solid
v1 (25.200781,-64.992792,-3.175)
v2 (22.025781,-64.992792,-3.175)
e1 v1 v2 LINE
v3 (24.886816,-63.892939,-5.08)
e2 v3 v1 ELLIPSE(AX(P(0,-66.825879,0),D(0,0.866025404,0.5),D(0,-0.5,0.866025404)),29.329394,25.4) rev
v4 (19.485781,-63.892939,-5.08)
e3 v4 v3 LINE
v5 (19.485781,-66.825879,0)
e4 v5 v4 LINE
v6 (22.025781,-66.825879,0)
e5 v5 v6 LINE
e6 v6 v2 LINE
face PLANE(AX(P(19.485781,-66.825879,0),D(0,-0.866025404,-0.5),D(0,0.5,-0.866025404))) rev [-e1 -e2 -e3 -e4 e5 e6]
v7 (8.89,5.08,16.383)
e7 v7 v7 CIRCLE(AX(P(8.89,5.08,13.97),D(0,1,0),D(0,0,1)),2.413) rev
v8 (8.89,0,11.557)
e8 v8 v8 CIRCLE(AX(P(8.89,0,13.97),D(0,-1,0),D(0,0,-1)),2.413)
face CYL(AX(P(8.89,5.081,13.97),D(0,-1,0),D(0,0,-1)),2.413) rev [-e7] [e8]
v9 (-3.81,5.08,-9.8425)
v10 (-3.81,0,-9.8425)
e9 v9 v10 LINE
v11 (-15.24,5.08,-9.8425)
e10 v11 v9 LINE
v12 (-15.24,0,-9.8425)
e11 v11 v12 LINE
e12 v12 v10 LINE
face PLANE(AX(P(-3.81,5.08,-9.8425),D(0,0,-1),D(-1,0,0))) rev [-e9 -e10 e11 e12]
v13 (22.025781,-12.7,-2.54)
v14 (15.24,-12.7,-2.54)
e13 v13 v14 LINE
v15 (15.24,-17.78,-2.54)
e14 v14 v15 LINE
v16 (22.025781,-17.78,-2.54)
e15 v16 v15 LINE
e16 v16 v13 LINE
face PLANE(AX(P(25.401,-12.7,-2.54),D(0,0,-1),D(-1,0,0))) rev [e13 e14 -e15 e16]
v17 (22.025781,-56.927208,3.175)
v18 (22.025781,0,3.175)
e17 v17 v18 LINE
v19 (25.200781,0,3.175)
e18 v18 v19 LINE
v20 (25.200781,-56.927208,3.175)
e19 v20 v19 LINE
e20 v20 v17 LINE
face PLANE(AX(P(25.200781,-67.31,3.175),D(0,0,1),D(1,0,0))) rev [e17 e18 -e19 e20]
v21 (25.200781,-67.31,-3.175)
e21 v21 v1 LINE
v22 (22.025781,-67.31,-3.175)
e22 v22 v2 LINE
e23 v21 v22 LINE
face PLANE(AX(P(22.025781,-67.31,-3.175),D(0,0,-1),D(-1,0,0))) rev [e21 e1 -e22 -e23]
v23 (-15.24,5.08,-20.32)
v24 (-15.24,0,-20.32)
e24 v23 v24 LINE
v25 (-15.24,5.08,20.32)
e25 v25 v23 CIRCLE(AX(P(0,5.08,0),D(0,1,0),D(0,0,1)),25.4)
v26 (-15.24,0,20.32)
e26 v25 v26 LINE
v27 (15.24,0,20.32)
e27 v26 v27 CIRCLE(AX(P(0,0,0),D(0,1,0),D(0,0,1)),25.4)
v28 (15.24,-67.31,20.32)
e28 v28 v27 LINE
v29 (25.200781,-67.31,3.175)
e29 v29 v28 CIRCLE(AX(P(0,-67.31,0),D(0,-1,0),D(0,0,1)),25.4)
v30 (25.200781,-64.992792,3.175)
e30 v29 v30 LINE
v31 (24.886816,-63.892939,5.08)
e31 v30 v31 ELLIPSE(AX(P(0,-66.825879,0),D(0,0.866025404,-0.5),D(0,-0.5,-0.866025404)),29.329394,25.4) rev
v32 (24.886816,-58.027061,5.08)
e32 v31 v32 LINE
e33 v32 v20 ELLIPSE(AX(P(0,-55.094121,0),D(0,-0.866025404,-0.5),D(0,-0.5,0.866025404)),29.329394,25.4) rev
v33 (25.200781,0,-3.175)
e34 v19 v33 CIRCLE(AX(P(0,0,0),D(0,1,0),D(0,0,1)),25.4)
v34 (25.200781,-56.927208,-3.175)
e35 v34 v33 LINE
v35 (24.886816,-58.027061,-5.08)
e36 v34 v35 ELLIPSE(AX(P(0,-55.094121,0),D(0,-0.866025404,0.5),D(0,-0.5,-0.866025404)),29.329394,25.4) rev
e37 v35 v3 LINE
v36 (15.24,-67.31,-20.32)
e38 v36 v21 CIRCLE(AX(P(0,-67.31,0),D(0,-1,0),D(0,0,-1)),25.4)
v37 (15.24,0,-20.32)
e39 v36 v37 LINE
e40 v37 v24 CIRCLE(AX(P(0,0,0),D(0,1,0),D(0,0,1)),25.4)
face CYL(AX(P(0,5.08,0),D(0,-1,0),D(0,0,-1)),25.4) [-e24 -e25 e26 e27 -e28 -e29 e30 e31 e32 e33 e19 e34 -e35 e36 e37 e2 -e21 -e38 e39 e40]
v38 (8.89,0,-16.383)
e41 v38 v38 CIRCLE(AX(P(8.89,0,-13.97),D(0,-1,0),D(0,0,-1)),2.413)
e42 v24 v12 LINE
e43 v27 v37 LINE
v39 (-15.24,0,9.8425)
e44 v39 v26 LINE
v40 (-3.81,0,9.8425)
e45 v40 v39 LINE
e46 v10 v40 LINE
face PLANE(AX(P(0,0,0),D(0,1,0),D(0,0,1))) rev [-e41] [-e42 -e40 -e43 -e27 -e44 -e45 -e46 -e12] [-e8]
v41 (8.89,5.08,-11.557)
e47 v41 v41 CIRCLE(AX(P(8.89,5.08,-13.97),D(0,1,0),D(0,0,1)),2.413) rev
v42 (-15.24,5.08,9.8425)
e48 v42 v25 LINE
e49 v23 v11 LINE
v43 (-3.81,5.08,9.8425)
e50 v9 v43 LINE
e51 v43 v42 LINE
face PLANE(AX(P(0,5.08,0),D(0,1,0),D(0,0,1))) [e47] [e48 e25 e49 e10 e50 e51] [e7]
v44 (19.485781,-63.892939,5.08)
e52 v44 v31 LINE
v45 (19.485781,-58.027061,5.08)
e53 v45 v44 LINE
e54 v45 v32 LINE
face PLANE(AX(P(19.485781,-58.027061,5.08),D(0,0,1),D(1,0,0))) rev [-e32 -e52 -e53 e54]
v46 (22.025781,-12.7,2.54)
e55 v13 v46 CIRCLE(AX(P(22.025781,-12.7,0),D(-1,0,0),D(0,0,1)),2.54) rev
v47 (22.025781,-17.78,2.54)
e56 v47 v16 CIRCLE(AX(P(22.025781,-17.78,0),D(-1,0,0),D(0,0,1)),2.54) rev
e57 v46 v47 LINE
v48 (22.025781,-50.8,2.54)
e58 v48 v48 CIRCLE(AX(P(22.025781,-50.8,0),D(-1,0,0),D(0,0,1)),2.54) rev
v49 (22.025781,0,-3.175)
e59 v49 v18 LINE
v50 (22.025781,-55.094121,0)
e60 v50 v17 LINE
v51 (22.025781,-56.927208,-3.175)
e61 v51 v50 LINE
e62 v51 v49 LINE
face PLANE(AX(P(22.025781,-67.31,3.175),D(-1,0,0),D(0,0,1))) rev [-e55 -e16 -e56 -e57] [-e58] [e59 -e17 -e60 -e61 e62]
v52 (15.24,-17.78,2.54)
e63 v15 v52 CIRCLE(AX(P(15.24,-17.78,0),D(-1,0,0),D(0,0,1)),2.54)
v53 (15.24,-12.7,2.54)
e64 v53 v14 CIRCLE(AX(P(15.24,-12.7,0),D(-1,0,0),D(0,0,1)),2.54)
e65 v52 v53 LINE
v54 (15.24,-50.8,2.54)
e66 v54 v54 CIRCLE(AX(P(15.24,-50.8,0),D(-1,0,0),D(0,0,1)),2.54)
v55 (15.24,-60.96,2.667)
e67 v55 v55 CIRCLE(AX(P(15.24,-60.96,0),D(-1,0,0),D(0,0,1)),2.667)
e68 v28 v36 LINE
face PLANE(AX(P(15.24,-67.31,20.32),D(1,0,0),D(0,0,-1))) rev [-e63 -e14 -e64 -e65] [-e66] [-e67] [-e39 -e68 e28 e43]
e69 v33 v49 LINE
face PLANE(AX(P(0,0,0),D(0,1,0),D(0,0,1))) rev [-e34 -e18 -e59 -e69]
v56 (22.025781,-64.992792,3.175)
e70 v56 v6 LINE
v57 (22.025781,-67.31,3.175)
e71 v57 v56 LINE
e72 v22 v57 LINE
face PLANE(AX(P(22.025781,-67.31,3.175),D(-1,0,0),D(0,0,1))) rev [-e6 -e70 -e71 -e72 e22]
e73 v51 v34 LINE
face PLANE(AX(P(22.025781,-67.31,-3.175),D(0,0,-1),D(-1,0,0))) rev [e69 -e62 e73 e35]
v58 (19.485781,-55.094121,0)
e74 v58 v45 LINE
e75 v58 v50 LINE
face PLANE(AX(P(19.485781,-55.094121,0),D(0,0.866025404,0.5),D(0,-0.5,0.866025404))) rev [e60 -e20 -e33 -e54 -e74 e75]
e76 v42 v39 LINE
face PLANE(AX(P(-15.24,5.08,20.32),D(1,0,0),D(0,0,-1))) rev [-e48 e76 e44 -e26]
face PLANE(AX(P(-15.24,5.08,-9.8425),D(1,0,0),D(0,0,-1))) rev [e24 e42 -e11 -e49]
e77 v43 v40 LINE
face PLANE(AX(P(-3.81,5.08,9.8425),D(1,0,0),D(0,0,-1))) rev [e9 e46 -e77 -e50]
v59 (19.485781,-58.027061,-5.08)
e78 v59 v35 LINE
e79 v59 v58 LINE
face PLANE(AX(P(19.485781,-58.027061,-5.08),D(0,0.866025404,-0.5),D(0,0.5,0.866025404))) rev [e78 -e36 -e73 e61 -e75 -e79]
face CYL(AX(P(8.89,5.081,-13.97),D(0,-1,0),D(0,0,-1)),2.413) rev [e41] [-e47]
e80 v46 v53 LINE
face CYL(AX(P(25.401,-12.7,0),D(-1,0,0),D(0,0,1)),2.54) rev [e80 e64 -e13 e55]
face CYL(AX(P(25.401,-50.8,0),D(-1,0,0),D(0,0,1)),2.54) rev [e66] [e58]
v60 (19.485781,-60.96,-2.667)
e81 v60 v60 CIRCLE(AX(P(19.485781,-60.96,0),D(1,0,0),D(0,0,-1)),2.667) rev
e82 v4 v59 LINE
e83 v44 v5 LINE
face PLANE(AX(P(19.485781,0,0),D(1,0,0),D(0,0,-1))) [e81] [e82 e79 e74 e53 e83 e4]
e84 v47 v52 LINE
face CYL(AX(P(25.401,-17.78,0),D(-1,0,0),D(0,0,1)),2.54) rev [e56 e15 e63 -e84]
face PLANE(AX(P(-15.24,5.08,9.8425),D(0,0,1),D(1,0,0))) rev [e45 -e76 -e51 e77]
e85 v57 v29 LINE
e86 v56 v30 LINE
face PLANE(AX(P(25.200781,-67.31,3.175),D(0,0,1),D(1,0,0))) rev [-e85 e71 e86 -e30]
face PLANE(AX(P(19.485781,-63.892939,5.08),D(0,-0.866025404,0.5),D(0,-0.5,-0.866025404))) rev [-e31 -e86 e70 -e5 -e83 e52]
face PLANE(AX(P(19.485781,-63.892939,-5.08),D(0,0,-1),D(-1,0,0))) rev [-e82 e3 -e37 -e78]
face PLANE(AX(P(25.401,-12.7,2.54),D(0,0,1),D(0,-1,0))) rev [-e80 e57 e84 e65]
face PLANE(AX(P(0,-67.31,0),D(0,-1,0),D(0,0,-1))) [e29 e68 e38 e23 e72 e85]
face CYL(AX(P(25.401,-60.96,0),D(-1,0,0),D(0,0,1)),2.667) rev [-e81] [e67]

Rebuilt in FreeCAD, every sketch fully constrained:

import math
import FreeCAD as App
import Part
import Sketcher

V = App.Vector
Q = App.Units.Quantity

doc = App.newDocument("Part")
params = doc.addObject("Spreadsheet::Sheet", "Params")
for row, (alias, value) in enumerate([
    ("sketch1_radius", "1 in"),
    ("sketch1_width", "0.45 in"),
    ("sketch1_height", "0.775 in"),
    ("pad1_length", "0.2 in"),
    ("sketch2_diameter", "0.19 in"),
    ("sketch3_diameter", "0.19 in"),
    ("sketch4_radius", "1 in"),
    ("sketch4_height", "1.6 in"),
    ("sketch4_height2", "0.25 in"),
    ("sketch4_width", "0.125 in"),
    ("pad2_length", "2.65 in"),
    ("sketch5_diameter", "0.2 in"),
    ("sketch6_diameter", "0.21 in"),
    ("sketch7_radius", "0.1 in"),
    ("sketch7_width", "0.2 in"),
    ("pocket6_length", "0.225 in"),
], start=1):
    params.set(f"A{row}", alias)
    params.set(f"B{row}", "=" + value)
    params.setAlias(f"B{row}", alias)

body = doc.addObject("PartDesign::Body", "Body")

# Sketch on XZ plane
sketch1 = doc.addObject("Sketcher::SketchObject", "Sketch")
body.addObject(sketch1)
sketch1.AttachmentSupport = (doc.XZ_Plane, [""])
sketch1.MapMode = "FlatFace"
sketch1.addGeometry([
    Part.LineSegment(V(-15.24, 9.8425, 0), V(-15.24, 20.32, 0)),  # 0
    Part.ArcOfCircle(Part.Circle(V(0, 0, 0), V(0, 0, 1), 25.4), math.radians(-126.869898), math.radians(126.869898)),  # 1
    Part.LineSegment(V(-15.24, -20.32, 0), V(-15.24, -9.8425, 0)),  # 2
    Part.LineSegment(V(-15.24, -9.8425, 0), V(-3.81, -9.8425, 0)),  # 3
    Part.LineSegment(V(-3.81, -9.8425, 0), V(-3.81, 9.8425, 0)),  # 4
    Part.LineSegment(V(-3.81, 9.8425, 0), V(-15.24, 9.8425, 0)),  # 5
], False)
sketch1.addConstraint([
    Sketcher.Constraint("Coincident", 0, 2, 1, 2),
    Sketcher.Constraint("Coincident", 1, 1, 2, 1),
    Sketcher.Constraint("Coincident", 2, 2, 3, 1),
    Sketcher.Constraint("Coincident", 3, 2, 4, 1),
    Sketcher.Constraint("Coincident", 4, 2, 5, 1),
    Sketcher.Constraint("Coincident", 5, 2, 0, 1),
    Sketcher.Constraint("Vertical", 0),
    Sketcher.Constraint("Vertical", 2),
    Sketcher.Constraint("Horizontal", 3),
    Sketcher.Constraint("Vertical", 4),
    Sketcher.Constraint("Horizontal", 5),
    Sketcher.Constraint("Coincident", 1, 3, -1, 1),
    Sketcher.Constraint("Symmetric", 2, 2, 5, 2, -1),
    Sketcher.Constraint("Radius", 1, Q("1 in")),
    Sketcher.Constraint("DistanceX", 3, 1, 3, 2, Q("0.45 in")),
    Sketcher.Constraint("DistanceX", 0, 2, -1, 1, Q("0.6 in")),
    Sketcher.Constraint("DistanceY", 4, 1, 4, 2, Q("0.775 in")),
])
sketch1.setExpression("Constraints[13]", "Params.sketch1_radius")
sketch1.setExpression("Constraints[14]", "Params.sketch1_width")
sketch1.setExpression("Constraints[16]", "Params.sketch1_height")
pad1 = doc.addObject("PartDesign::Pad", "Pad")
body.addObject(pad1)
pad1.Profile = sketch1
pad1.setExpression("Length", "Params.pad1_length")
pad1.Reversed = True

# Sketch on XZ plane
sketch2 = doc.addObject("Sketcher::SketchObject", "Sketch001")
body.addObject(sketch2)
sketch2.AttachmentSupport = (doc.XZ_Plane, [""])
sketch2.MapMode = "FlatFace"
sketch2.addGeometry(Part.Circle(V(8.89, 13.97, 0), V(0, 0, 1), 2.413), False)
sketch2.addConstraint([
    Sketcher.Constraint("Diameter", 0, Q("0.19 in")),
    Sketcher.Constraint("DistanceX", -1, 1, 0, 3, Q("0.35 in")),
    Sketcher.Constraint("DistanceY", -1, 1, 0, 3, Q("0.55 in")),
])
sketch2.setExpression("Constraints[0]", "Params.sketch2_diameter")
pocket1 = doc.addObject("PartDesign::Pocket", "Pocket")
body.addObject(pocket1)
pocket1.Profile = sketch2
pocket1.Type = "UpToFirst"

# Sketch on XZ plane
sketch3 = doc.addObject("Sketcher::SketchObject", "Sketch002")
body.addObject(sketch3)
sketch3.AttachmentSupport = (doc.XZ_Plane, [""])
sketch3.MapMode = "FlatFace"
sketch3.addGeometry(Part.Circle(V(8.89, -13.97, 0), V(0, 0, 1), 2.413), False)
sketch3.addConstraint([
    Sketcher.Constraint("Diameter", 0, Q("0.19 in")),
    Sketcher.Constraint("DistanceX", -1, 1, 0, 3, Q("0.35 in")),
    Sketcher.Constraint("DistanceY", 0, 3, -1, 1, Q("0.55 in")),
])
sketch3.setExpression("Constraints[0]", "Params.sketch3_diameter")
pocket2 = doc.addObject("PartDesign::Pocket", "Pocket001")
body.addObject(pocket2)
pocket2.Profile = sketch3
pocket2.Type = "UpToFirst"

# Sketch on XZ plane
sketch4 = doc.addObject("Sketcher::SketchObject", "Sketch003")
body.addObject(sketch4)
sketch4.AttachmentSupport = (doc.XZ_Plane, [""])
sketch4.MapMode = "FlatFace"
sketch4.AttachmentOffset = App.Placement(V(0, 0, 2.65 * 25.4), App.Rotation())
sketch4.addGeometry([
    Part.LineSegment(V(15.24, 20.32, 0), V(15.24, -20.32, 0)),  # 0
    Part.ArcOfCircle(Part.Circle(V(0, 0, 0), V(0, 0, 1), 25.4), math.radians(-53.130102), math.radians(-7.180756)),  # 1
    Part.LineSegment(V(25.200781, -3.175, 0), V(22.025781, -3.175, 0)),  # 2
    Part.LineSegment(V(22.025781, -3.175, 0), V(22.025781, 3.175, 0)),  # 3
    Part.LineSegment(V(22.025781, 3.175, 0), V(25.200781, 3.175, 0)),  # 4
    Part.ArcOfCircle(Part.Circle(V(0, 0, 0), V(0, 0, 1), 25.4), math.radians(7.180756), math.radians(53.130102)),  # 5
], False)
sketch4.addConstraint([
    Sketcher.Constraint("Coincident", 0, 2, 1, 1),
    Sketcher.Constraint("Coincident", 1, 2, 2, 1),
    Sketcher.Constraint("Coincident", 2, 2, 3, 1),
    Sketcher.Constraint("Coincident", 3, 2, 4, 1),
    Sketcher.Constraint("Coincident", 4, 2, 5, 1),
    Sketcher.Constraint("Coincident", 5, 2, 0, 1),
    Sketcher.Constraint("Vertical", 0),
    Sketcher.Constraint("Horizontal", 2),
    Sketcher.Constraint("Vertical", 3),
    Sketcher.Constraint("Horizontal", 4),
    Sketcher.Constraint("Coincident", 1, 3, -1, 1),
    Sketcher.Constraint("Coincident", 5, 3, -1, 1),
    Sketcher.Constraint("Equal", 1, 5),
    Sketcher.Constraint("Vertical", 1, 2, 4, 2),
    Sketcher.Constraint("Radius", 1, Q("1 in")),
    Sketcher.Constraint("DistanceY", 0, 2, 0, 1, Q("1.6 in")),
    Sketcher.Constraint("DistanceY", 3, 1, 3, 2, Q("0.25 in")),
    Sketcher.Constraint("DistanceX", 2, 2, 2, 1, Q("0.125 in")),
])
sketch4.setExpression("Constraints[14]", "Params.sketch4_radius")
sketch4.setExpression("Constraints[15]", "Params.sketch4_height")
sketch4.setExpression("Constraints[16]", "Params.sketch4_height2")
sketch4.setExpression("Constraints[17]", "Params.sketch4_width")
pad2 = doc.addObject("PartDesign::Pad", "Pad001")
body.addObject(pad2)
pad2.Profile = sketch4
pad2.setExpression("Length", "Params.pad2_length")
pad2.Reversed = True

# Sketch on YZ plane
sketch5 = doc.addObject("Sketcher::SketchObject", "Sketch004")
body.addObject(sketch5)
sketch5.AttachmentSupport = (doc.YZ_Plane, [""])
sketch5.MapMode = "FlatFace"
sketch5.AttachmentOffset = App.Placement(V(0, 0, 0.6 * 25.4), App.Rotation())
sketch5.addGeometry(Part.Circle(V(-50.8, 0, 0), V(0, 0, 1), 2.54), False)
sketch5.addConstraint([
    Sketcher.Constraint("PointOnObject", 0, 3, -1),
    Sketcher.Constraint("Diameter", 0, Q("0.2 in")),
    Sketcher.Constraint("DistanceX", 0, 3, -1, 1, Q("2 in")),
])
sketch5.setExpression("Constraints[1]", "Params.sketch5_diameter")
pocket3 = doc.addObject("PartDesign::Pocket", "Pocket002")
body.addObject(pocket3)
pocket3.Profile = sketch5
pocket3.Type = "UpToFirst"
pocket3.Reversed = True

# Sketch on YZ plane
sketch6 = doc.addObject("Sketcher::SketchObject", "Sketch005")
body.addObject(sketch6)
sketch6.AttachmentSupport = (doc.YZ_Plane, [""])
sketch6.MapMode = "FlatFace"
sketch6.AttachmentOffset = App.Placement(V(0, 0, 0.6 * 25.4), App.Rotation())
sketch6.addGeometry(Part.Circle(V(-60.96, 0, 0), V(0, 0, 1), 2.667), False)
sketch6.addConstraint([
    Sketcher.Constraint("PointOnObject", 0, 3, -1),
    Sketcher.Constraint("Diameter", 0, Q("0.21 in")),
    Sketcher.Constraint("DistanceX", 0, 3, -1, 1, Q("2.4 in")),
])
sketch6.setExpression("Constraints[1]", "Params.sketch6_diameter")
pocket4 = doc.addObject("PartDesign::Pocket", "Pocket003")
body.addObject(pocket4)
pocket4.Profile = sketch6
pocket4.Type = "UpToFirst"
pocket4.Reversed = True

# Sketch on YZ plane
sketch7 = doc.addObject("Sketcher::SketchObject", "Sketch006")
body.addObject(sketch7)
sketch7.AttachmentSupport = (doc.YZ_Plane, [""])
sketch7.MapMode = "FlatFace"
sketch7.AttachmentOffset = App.Placement(V(0, 0, 0.6 * 25.4), App.Rotation())
sketch7.addGeometry([
    Part.LineSegment(V(-17.78, 2.54, 0), V(-12.7, 2.54, 0)),
    Part.ArcOfCircle(Part.Circle(V(-12.7, 0, 0), V(0, 0, 1), 2.54), math.radians(-90), math.radians(90)),
    Part.LineSegment(V(-12.7, -2.54, 0), V(-17.78, -2.54, 0)),
    Part.ArcOfCircle(Part.Circle(V(-17.78, 0, 0), V(0, 0, 1), 2.54), math.radians(90), math.radians(270)),
], False)
sketch7.addConstraint([
    Sketcher.Constraint("Tangent", 0, 2, 1, 2),
    Sketcher.Constraint("Tangent", 1, 1, 2, 1),
    Sketcher.Constraint("Tangent", 2, 2, 3, 2),
    Sketcher.Constraint("Tangent", 3, 1, 0, 1),
    Sketcher.Constraint("Horizontal", 0),
    Sketcher.Constraint("Horizontal", 2),
    Sketcher.Constraint("PointOnObject", 1, 3, -1),
    Sketcher.Constraint("Radius", 1, Q("0.1 in")),
    Sketcher.Constraint("DistanceX", 0, 1, 0, 2, Q("0.2 in")),
    Sketcher.Constraint("DistanceX", 1, 3, -1, 1, Q("0.5 in")),
])
sketch7.setExpression("Constraints[7]", "Params.sketch7_radius")
sketch7.setExpression("Constraints[8]", "Params.sketch7_width")
pocket5 = doc.addObject("PartDesign::Pocket", "Pocket004")
body.addObject(pocket5)
pocket5.Profile = sketch7
pocket5.Type = "UpToFirst"
pocket5.Reversed = True

# Sketch on YZ plane
sketch8 = doc.addObject("Sketcher::SketchObject", "Sketch007")
body.addObject(sketch8)
sketch8.AttachmentSupport = (doc.YZ_Plane, [""])
sketch8.MapMode = "FlatFace"
sketch8.AttachmentOffset = App.Placement(V(0, 0, 19.485781), App.Rotation())
sketch8.addGeometry([
    Part.LineSegment(V(-66.825879, 0, 0), V(-63.892939, -5.08, 0)),  # 0
    Part.LineSegment(V(-63.892939, -5.08, 0), V(-58.027061, -5.08, 0)),  # 1
    Part.LineSegment(V(-58.027061, -5.08, 0), V(-55.094121, 0, 0)),  # 2
    Part.LineSegment(V(-55.094121, 0, 0), V(-58.027061, 5.08, 0)),  # 3
    Part.LineSegment(V(-58.027061, 5.08, 0), V(-63.892939, 5.08, 0)),  # 4
    Part.LineSegment(V(-63.892939, 5.08, 0), V(-66.825879, 0, 0)),  # 5
], False)
sketch8.addConstraint([
    Sketcher.Constraint("Coincident", 0, 2, 1, 1),
    Sketcher.Constraint("Coincident", 1, 2, 2, 1),
    Sketcher.Constraint("Coincident", 2, 2, 3, 1),
    Sketcher.Constraint("Coincident", 3, 2, 4, 1),
    Sketcher.Constraint("Coincident", 4, 2, 5, 1),
    Sketcher.Constraint("Coincident", 5, 2, 0, 1),
    Sketcher.Constraint("Horizontal", 1),
    Sketcher.Constraint("Horizontal", 4),
    Sketcher.Constraint("Symmetric", 1, 2, 3, 2, -1),
    Sketcher.Constraint("PointOnObject", 2, 2, -1),
    Sketcher.Constraint("PointOnObject", 5, 2, -1),
    Sketcher.Constraint("Parallel", 0, 3),
    Sketcher.Constraint("Parallel", 2, 5),
    Sketcher.Constraint("Angle", 0, Q("-60 deg")),
    Sketcher.Constraint("DistanceY", 0, 2, -1, 1, Q("0.2 in")),
    Sketcher.Constraint("DistanceX", 1, 1, 1, 2, 5.865879),
    Sketcher.Constraint("DistanceX", 0, 2, -1, 1, 63.892939),
])
pocket6 = doc.addObject("PartDesign::Pocket", "Pocket005")
body.addObject(pocket6)
pocket6.Profile = sketch8
pocket6.setExpression("Length", "Params.pocket6_length")
pocket6.Reversed = True

doc.recompute()
